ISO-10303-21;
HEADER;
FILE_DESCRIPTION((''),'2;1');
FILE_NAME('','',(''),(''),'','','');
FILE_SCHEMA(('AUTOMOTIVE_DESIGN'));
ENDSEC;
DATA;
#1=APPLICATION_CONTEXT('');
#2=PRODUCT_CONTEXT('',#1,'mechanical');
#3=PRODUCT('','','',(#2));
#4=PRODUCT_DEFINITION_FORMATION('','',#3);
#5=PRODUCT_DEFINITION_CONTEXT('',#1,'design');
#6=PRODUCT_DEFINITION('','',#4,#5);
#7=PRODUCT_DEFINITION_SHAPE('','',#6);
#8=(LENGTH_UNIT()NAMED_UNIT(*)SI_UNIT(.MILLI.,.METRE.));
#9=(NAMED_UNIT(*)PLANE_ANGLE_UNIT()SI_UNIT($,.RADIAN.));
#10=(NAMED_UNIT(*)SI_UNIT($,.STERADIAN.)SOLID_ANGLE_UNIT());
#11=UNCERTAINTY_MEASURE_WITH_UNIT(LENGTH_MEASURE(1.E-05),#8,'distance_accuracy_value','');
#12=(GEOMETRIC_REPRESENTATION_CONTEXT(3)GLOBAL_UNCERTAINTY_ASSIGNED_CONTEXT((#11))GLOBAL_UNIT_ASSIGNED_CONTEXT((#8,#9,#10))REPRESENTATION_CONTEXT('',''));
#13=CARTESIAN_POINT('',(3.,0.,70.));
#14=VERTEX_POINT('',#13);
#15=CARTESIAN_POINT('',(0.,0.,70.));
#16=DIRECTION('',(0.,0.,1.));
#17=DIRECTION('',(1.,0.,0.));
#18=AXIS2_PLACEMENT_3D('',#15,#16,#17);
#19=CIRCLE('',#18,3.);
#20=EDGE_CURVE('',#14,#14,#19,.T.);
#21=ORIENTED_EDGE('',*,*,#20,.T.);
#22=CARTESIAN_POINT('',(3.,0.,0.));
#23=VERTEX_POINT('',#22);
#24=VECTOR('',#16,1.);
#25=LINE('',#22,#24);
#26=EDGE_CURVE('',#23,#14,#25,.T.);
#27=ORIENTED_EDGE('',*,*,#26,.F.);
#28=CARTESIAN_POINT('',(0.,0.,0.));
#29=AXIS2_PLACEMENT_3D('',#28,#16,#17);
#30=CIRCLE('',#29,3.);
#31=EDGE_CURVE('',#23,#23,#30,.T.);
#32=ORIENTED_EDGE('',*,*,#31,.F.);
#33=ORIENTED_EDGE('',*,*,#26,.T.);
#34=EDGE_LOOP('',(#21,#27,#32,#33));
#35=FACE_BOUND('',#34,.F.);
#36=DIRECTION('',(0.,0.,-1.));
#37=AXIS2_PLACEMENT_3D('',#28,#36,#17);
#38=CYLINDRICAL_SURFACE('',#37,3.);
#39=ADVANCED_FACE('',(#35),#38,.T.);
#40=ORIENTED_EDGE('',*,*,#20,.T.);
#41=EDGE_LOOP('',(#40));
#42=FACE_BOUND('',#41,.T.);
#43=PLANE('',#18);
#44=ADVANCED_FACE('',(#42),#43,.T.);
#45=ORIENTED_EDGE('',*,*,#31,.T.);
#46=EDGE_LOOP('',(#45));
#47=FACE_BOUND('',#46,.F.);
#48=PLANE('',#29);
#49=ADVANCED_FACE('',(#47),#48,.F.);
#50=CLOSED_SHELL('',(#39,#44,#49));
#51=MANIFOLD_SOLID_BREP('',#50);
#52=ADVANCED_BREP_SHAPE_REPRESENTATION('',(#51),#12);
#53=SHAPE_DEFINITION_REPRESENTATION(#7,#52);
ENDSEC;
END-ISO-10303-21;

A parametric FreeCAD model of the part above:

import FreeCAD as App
import Part
import Sketcher
from FreeCAD import Vector

doc = App.newDocument("Part")
body = doc.addObject("PartDesign::Body", "Body")

# Sketch on XY plane
sketch1 = body.newObject("Sketcher::SketchObject", "Sketch")
sketch1.AttachmentSupport = (doc.getObject("XY_Plane"), [""])
sketch1.MapMode = "FlatFace"
sketch1.addGeometry(Part.Circle(Vector(0, 0, 0), Vector(0, 0, 1), 3), False)
sketch1.addConstraint([
    Sketcher.Constraint("Coincident", 0, 3, -1, 1),
    Sketcher.Constraint("Diameter", 0, 6.0),
])
pad1 = body.newObject("PartDesign::Pad", "Pad")
pad1.Profile = sketch1
pad1.Length = 70

doc.recompute()
